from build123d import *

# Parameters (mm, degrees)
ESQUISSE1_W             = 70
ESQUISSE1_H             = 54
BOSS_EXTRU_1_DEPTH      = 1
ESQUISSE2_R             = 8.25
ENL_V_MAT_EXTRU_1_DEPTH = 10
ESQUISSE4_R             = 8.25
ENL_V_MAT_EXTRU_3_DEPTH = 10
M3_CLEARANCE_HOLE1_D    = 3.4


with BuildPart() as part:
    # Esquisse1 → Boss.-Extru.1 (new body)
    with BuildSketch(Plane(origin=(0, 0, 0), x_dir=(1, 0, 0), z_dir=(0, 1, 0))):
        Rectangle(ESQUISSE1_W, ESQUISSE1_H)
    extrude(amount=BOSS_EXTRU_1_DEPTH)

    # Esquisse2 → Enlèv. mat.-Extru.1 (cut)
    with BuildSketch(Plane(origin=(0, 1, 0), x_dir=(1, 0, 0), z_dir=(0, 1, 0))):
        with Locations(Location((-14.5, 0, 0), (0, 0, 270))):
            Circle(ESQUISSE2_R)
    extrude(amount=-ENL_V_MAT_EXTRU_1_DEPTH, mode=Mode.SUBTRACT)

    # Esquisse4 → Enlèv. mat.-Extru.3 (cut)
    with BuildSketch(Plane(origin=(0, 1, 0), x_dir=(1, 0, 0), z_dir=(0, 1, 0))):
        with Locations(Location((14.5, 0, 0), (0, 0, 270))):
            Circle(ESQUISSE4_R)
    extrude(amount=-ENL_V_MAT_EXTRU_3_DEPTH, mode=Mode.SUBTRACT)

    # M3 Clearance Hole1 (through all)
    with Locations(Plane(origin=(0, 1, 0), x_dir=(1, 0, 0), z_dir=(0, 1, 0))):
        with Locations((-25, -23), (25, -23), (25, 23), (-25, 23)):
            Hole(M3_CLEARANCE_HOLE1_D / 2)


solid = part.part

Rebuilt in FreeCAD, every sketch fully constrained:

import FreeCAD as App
import Part
import Sketcher


def add_polygon(sketch, points):
    """Adds a closed chain of lines whose ends are joined by coincident constraints."""
    first, n = sketch.GeometryCount, len(points)
    for a, b in zip(points, points[1:] + points[:1]):
        sketch.addGeometry(Part.LineSegment(App.Vector(*a, 0), App.Vector(*b, 0)), False)
    for i in range(n):
        sketch.addConstraint(Sketcher.Constraint("Coincident", first + i, 2, first + (i + 1) % n, 1))

doc = App.newDocument("Part")
params = doc.addObject("Spreadsheet::Sheet", "Params")
for row, (alias, value) in enumerate([
    ("sketch1_width", "70 mm"),
    ("sketch1_height", "54 mm"),
    ("pad1_length", "1 mm"),
    ("sketch2_diameter", "16.5 mm"),
    ("pocket1_length", "10 mm"),
    ("sketch3_diameter", "16.5 mm"),
    ("pocket2_length", "10 mm"),
    ("sketch4_diameter", "3.4 mm"),
    ("hole_diameter", "3.4 mm"),
], start=1):
    params.set(f"A{row}", alias)
    params.set(f"B{row}", "=" + value)
    params.setAlias(f"B{row}", alias)

body = doc.addObject("PartDesign::Body", "Body")

sketch1 = doc.addObject("Sketcher::SketchObject", "Sketch")
body.addObject(sketch1)
sketch1.AttachmentSupport = (doc.XZ_Plane, [""])
sketch1.MapMode = "FlatFace"
add_polygon(sketch1, [(-35, -27), (-35, 27), (35, 27), (35, -27)])
sketch1.addConstraint(Sketcher.Constraint("Vertical", 0))
sketch1.addConstraint(Sketcher.Constraint("Horizontal", 1))
sketch1.addConstraint(Sketcher.Constraint("Vertical", 2))
sketch1.addConstraint(Sketcher.Constraint("Horizontal", 3))
sketch1.addConstraint(Sketcher.Constraint("Symmetric", 0, 2, 2, 2, -1, 1))
sketch1.addConstraint(Sketcher.Constraint("DistanceX", 1, 1, 1, 2, 70.0))
sketch1.addConstraint(Sketcher.Constraint("DistanceY", 0, 1, 0, 2, 54.0))
sketch1.setExpression("Constraints[9]", "Params.sketch1_width")
sketch1.setExpression("Constraints[10]", "Params.sketch1_height")
pad1 = doc.addObject("PartDesign::Pad", "Pad")
body.addObject(pad1)
pad1.Profile = sketch1
pad1.setExpression("Length", "Params.pad1_length")
pad1.Reversed = True

sketch2 = doc.addObject("Sketcher::SketchObject", "Sketch001")
body.addObject(sketch2)
sketch2.AttachmentSupport = (doc.XZ_Plane, [""])
sketch2.MapMode = "FlatFace"
sketch2.AttachmentOffset = App.Placement(App.Vector(0, 0, -1), App.Rotation())
sketch2.addGeometry(Part.Circle(App.Vector(-14, 0, 0), App.Vector(0, 0, 1), 8), False)
sketch2.addConstraint(Sketcher.Constraint("PointOnObject", 0, 3, -1))
sketch2.addConstraint(Sketcher.Constraint("Diameter", 0, 16.5))
sketch2.addConstraint(Sketcher.Constraint("DistanceX", 0, 3, -1, 1, 14.5))
sketch2.setExpression("Constraints[1]", "Params.sketch2_diameter")
pocket1 = doc.addObject("PartDesign::Pocket", "Pocket")
body.addObject(pocket1)
pocket1.Profile = sketch2
pocket1.setExpression("Length", "Params.pocket1_length")
pocket1.Reversed = True

sketch3 = doc.addObject("Sketcher::SketchObject", "Sketch002")
body.addObject(sketch3)
sketch3.AttachmentSupport = (doc.XZ_Plane, [""])
sketch3.MapMode = "FlatFace"
sketch3.AttachmentOffset = App.Placement(App.Vector(0, 0, -1), App.Rotation())
sketch3.addGeometry(Part.Circle(App.Vector(14, 0, 0), App.Vector(0, 0, 1), 8), False)
sketch3.addConstraint(Sketcher.Constraint("PointOnObject", 0, 3, -1))
sketch3.addConstraint(Sketcher.Constraint("Diameter", 0, 16.5))
sketch3.addConstraint(Sketcher.Constraint("DistanceX", -1, 1, 0, 3, 14.5))
sketch3.setExpression("Constraints[1]", "Params.sketch3_diameter")
pocket2 = doc.addObject("PartDesign::Pocket", "Pocket001")
body.addObject(pocket2)
pocket2.Profile = sketch3
pocket2.setExpression("Length", "Params.pocket2_length")
pocket2.Reversed = True

sketch4 = doc.addObject("Sketcher::SketchObject", "Sketch003")
body.addObject(sketch4)
sketch4.AttachmentSupport = (doc.XZ_Plane, [""])
sketch4.MapMode = "FlatFace"
sketch4.AttachmentOffset = App.Placement(App.Vector(0, 0, -1), App.Rotation())
sketch4.addGeometry(Part.Circle(App.Vector(-25, 23, 0), App.Vector(0, 0, 1), 1.7), False)
sketch4.addGeometry(Part.Circle(App.Vector(25, 23, 0), App.Vector(0, 0, 1), 1.7), False)
sketch4.addGeometry(Part.Circle(App.Vector(25, -23, 0), App.Vector(0, 0, 1), 1.7), False)
sketch4.addGeometry(Part.Circle(App.Vector(-25, -23, 0), App.Vector(0, 0, 1), 1.7), False)
sketch4.addConstraint(Sketcher.Constraint("Equal", 0, 1))
sketch4.addConstraint(Sketcher.Constraint("Equal", 1, 2))
sketch4.addConstraint(Sketcher.Constraint("Equal", 2, 3))
sketch4.addConstraint(Sketcher.Constraint("Symmetric", 0, 3, 2, 3, -1, 1))
sketch4.addConstraint(Sketcher.Constraint("Symmetric", 1, 3, 3, 3, -1, 1))
sketch4.addConstraint(Sketcher.Constraint("Symmetric", 0, 3, 1, 3, -2))
sketch4.addConstraint(Sketcher.Constraint("Diameter", 0, 3.4))
sketch4.addConstraint(Sketcher.Constraint("DistanceX", 0, 3, -1, 1, 25.0))
sketch4.addConstraint(Sketcher.Constraint("DistanceY", -1, 1, 0, 3, 23.0))
sketch4.setExpression("Constraints[6]", "Params.sketch4_diameter")
doc.recompute()
hole = doc.addObject("PartDesign::Hole", "Hole")
body.addObject(hole)
hole.Profile = sketch4
hole.ThreadType = "None"
hole.setExpression("Diameter", "Params.hole_diameter")
hole.DepthType = "ThroughAll"
hole.Reversed = True

doc.recompute()
